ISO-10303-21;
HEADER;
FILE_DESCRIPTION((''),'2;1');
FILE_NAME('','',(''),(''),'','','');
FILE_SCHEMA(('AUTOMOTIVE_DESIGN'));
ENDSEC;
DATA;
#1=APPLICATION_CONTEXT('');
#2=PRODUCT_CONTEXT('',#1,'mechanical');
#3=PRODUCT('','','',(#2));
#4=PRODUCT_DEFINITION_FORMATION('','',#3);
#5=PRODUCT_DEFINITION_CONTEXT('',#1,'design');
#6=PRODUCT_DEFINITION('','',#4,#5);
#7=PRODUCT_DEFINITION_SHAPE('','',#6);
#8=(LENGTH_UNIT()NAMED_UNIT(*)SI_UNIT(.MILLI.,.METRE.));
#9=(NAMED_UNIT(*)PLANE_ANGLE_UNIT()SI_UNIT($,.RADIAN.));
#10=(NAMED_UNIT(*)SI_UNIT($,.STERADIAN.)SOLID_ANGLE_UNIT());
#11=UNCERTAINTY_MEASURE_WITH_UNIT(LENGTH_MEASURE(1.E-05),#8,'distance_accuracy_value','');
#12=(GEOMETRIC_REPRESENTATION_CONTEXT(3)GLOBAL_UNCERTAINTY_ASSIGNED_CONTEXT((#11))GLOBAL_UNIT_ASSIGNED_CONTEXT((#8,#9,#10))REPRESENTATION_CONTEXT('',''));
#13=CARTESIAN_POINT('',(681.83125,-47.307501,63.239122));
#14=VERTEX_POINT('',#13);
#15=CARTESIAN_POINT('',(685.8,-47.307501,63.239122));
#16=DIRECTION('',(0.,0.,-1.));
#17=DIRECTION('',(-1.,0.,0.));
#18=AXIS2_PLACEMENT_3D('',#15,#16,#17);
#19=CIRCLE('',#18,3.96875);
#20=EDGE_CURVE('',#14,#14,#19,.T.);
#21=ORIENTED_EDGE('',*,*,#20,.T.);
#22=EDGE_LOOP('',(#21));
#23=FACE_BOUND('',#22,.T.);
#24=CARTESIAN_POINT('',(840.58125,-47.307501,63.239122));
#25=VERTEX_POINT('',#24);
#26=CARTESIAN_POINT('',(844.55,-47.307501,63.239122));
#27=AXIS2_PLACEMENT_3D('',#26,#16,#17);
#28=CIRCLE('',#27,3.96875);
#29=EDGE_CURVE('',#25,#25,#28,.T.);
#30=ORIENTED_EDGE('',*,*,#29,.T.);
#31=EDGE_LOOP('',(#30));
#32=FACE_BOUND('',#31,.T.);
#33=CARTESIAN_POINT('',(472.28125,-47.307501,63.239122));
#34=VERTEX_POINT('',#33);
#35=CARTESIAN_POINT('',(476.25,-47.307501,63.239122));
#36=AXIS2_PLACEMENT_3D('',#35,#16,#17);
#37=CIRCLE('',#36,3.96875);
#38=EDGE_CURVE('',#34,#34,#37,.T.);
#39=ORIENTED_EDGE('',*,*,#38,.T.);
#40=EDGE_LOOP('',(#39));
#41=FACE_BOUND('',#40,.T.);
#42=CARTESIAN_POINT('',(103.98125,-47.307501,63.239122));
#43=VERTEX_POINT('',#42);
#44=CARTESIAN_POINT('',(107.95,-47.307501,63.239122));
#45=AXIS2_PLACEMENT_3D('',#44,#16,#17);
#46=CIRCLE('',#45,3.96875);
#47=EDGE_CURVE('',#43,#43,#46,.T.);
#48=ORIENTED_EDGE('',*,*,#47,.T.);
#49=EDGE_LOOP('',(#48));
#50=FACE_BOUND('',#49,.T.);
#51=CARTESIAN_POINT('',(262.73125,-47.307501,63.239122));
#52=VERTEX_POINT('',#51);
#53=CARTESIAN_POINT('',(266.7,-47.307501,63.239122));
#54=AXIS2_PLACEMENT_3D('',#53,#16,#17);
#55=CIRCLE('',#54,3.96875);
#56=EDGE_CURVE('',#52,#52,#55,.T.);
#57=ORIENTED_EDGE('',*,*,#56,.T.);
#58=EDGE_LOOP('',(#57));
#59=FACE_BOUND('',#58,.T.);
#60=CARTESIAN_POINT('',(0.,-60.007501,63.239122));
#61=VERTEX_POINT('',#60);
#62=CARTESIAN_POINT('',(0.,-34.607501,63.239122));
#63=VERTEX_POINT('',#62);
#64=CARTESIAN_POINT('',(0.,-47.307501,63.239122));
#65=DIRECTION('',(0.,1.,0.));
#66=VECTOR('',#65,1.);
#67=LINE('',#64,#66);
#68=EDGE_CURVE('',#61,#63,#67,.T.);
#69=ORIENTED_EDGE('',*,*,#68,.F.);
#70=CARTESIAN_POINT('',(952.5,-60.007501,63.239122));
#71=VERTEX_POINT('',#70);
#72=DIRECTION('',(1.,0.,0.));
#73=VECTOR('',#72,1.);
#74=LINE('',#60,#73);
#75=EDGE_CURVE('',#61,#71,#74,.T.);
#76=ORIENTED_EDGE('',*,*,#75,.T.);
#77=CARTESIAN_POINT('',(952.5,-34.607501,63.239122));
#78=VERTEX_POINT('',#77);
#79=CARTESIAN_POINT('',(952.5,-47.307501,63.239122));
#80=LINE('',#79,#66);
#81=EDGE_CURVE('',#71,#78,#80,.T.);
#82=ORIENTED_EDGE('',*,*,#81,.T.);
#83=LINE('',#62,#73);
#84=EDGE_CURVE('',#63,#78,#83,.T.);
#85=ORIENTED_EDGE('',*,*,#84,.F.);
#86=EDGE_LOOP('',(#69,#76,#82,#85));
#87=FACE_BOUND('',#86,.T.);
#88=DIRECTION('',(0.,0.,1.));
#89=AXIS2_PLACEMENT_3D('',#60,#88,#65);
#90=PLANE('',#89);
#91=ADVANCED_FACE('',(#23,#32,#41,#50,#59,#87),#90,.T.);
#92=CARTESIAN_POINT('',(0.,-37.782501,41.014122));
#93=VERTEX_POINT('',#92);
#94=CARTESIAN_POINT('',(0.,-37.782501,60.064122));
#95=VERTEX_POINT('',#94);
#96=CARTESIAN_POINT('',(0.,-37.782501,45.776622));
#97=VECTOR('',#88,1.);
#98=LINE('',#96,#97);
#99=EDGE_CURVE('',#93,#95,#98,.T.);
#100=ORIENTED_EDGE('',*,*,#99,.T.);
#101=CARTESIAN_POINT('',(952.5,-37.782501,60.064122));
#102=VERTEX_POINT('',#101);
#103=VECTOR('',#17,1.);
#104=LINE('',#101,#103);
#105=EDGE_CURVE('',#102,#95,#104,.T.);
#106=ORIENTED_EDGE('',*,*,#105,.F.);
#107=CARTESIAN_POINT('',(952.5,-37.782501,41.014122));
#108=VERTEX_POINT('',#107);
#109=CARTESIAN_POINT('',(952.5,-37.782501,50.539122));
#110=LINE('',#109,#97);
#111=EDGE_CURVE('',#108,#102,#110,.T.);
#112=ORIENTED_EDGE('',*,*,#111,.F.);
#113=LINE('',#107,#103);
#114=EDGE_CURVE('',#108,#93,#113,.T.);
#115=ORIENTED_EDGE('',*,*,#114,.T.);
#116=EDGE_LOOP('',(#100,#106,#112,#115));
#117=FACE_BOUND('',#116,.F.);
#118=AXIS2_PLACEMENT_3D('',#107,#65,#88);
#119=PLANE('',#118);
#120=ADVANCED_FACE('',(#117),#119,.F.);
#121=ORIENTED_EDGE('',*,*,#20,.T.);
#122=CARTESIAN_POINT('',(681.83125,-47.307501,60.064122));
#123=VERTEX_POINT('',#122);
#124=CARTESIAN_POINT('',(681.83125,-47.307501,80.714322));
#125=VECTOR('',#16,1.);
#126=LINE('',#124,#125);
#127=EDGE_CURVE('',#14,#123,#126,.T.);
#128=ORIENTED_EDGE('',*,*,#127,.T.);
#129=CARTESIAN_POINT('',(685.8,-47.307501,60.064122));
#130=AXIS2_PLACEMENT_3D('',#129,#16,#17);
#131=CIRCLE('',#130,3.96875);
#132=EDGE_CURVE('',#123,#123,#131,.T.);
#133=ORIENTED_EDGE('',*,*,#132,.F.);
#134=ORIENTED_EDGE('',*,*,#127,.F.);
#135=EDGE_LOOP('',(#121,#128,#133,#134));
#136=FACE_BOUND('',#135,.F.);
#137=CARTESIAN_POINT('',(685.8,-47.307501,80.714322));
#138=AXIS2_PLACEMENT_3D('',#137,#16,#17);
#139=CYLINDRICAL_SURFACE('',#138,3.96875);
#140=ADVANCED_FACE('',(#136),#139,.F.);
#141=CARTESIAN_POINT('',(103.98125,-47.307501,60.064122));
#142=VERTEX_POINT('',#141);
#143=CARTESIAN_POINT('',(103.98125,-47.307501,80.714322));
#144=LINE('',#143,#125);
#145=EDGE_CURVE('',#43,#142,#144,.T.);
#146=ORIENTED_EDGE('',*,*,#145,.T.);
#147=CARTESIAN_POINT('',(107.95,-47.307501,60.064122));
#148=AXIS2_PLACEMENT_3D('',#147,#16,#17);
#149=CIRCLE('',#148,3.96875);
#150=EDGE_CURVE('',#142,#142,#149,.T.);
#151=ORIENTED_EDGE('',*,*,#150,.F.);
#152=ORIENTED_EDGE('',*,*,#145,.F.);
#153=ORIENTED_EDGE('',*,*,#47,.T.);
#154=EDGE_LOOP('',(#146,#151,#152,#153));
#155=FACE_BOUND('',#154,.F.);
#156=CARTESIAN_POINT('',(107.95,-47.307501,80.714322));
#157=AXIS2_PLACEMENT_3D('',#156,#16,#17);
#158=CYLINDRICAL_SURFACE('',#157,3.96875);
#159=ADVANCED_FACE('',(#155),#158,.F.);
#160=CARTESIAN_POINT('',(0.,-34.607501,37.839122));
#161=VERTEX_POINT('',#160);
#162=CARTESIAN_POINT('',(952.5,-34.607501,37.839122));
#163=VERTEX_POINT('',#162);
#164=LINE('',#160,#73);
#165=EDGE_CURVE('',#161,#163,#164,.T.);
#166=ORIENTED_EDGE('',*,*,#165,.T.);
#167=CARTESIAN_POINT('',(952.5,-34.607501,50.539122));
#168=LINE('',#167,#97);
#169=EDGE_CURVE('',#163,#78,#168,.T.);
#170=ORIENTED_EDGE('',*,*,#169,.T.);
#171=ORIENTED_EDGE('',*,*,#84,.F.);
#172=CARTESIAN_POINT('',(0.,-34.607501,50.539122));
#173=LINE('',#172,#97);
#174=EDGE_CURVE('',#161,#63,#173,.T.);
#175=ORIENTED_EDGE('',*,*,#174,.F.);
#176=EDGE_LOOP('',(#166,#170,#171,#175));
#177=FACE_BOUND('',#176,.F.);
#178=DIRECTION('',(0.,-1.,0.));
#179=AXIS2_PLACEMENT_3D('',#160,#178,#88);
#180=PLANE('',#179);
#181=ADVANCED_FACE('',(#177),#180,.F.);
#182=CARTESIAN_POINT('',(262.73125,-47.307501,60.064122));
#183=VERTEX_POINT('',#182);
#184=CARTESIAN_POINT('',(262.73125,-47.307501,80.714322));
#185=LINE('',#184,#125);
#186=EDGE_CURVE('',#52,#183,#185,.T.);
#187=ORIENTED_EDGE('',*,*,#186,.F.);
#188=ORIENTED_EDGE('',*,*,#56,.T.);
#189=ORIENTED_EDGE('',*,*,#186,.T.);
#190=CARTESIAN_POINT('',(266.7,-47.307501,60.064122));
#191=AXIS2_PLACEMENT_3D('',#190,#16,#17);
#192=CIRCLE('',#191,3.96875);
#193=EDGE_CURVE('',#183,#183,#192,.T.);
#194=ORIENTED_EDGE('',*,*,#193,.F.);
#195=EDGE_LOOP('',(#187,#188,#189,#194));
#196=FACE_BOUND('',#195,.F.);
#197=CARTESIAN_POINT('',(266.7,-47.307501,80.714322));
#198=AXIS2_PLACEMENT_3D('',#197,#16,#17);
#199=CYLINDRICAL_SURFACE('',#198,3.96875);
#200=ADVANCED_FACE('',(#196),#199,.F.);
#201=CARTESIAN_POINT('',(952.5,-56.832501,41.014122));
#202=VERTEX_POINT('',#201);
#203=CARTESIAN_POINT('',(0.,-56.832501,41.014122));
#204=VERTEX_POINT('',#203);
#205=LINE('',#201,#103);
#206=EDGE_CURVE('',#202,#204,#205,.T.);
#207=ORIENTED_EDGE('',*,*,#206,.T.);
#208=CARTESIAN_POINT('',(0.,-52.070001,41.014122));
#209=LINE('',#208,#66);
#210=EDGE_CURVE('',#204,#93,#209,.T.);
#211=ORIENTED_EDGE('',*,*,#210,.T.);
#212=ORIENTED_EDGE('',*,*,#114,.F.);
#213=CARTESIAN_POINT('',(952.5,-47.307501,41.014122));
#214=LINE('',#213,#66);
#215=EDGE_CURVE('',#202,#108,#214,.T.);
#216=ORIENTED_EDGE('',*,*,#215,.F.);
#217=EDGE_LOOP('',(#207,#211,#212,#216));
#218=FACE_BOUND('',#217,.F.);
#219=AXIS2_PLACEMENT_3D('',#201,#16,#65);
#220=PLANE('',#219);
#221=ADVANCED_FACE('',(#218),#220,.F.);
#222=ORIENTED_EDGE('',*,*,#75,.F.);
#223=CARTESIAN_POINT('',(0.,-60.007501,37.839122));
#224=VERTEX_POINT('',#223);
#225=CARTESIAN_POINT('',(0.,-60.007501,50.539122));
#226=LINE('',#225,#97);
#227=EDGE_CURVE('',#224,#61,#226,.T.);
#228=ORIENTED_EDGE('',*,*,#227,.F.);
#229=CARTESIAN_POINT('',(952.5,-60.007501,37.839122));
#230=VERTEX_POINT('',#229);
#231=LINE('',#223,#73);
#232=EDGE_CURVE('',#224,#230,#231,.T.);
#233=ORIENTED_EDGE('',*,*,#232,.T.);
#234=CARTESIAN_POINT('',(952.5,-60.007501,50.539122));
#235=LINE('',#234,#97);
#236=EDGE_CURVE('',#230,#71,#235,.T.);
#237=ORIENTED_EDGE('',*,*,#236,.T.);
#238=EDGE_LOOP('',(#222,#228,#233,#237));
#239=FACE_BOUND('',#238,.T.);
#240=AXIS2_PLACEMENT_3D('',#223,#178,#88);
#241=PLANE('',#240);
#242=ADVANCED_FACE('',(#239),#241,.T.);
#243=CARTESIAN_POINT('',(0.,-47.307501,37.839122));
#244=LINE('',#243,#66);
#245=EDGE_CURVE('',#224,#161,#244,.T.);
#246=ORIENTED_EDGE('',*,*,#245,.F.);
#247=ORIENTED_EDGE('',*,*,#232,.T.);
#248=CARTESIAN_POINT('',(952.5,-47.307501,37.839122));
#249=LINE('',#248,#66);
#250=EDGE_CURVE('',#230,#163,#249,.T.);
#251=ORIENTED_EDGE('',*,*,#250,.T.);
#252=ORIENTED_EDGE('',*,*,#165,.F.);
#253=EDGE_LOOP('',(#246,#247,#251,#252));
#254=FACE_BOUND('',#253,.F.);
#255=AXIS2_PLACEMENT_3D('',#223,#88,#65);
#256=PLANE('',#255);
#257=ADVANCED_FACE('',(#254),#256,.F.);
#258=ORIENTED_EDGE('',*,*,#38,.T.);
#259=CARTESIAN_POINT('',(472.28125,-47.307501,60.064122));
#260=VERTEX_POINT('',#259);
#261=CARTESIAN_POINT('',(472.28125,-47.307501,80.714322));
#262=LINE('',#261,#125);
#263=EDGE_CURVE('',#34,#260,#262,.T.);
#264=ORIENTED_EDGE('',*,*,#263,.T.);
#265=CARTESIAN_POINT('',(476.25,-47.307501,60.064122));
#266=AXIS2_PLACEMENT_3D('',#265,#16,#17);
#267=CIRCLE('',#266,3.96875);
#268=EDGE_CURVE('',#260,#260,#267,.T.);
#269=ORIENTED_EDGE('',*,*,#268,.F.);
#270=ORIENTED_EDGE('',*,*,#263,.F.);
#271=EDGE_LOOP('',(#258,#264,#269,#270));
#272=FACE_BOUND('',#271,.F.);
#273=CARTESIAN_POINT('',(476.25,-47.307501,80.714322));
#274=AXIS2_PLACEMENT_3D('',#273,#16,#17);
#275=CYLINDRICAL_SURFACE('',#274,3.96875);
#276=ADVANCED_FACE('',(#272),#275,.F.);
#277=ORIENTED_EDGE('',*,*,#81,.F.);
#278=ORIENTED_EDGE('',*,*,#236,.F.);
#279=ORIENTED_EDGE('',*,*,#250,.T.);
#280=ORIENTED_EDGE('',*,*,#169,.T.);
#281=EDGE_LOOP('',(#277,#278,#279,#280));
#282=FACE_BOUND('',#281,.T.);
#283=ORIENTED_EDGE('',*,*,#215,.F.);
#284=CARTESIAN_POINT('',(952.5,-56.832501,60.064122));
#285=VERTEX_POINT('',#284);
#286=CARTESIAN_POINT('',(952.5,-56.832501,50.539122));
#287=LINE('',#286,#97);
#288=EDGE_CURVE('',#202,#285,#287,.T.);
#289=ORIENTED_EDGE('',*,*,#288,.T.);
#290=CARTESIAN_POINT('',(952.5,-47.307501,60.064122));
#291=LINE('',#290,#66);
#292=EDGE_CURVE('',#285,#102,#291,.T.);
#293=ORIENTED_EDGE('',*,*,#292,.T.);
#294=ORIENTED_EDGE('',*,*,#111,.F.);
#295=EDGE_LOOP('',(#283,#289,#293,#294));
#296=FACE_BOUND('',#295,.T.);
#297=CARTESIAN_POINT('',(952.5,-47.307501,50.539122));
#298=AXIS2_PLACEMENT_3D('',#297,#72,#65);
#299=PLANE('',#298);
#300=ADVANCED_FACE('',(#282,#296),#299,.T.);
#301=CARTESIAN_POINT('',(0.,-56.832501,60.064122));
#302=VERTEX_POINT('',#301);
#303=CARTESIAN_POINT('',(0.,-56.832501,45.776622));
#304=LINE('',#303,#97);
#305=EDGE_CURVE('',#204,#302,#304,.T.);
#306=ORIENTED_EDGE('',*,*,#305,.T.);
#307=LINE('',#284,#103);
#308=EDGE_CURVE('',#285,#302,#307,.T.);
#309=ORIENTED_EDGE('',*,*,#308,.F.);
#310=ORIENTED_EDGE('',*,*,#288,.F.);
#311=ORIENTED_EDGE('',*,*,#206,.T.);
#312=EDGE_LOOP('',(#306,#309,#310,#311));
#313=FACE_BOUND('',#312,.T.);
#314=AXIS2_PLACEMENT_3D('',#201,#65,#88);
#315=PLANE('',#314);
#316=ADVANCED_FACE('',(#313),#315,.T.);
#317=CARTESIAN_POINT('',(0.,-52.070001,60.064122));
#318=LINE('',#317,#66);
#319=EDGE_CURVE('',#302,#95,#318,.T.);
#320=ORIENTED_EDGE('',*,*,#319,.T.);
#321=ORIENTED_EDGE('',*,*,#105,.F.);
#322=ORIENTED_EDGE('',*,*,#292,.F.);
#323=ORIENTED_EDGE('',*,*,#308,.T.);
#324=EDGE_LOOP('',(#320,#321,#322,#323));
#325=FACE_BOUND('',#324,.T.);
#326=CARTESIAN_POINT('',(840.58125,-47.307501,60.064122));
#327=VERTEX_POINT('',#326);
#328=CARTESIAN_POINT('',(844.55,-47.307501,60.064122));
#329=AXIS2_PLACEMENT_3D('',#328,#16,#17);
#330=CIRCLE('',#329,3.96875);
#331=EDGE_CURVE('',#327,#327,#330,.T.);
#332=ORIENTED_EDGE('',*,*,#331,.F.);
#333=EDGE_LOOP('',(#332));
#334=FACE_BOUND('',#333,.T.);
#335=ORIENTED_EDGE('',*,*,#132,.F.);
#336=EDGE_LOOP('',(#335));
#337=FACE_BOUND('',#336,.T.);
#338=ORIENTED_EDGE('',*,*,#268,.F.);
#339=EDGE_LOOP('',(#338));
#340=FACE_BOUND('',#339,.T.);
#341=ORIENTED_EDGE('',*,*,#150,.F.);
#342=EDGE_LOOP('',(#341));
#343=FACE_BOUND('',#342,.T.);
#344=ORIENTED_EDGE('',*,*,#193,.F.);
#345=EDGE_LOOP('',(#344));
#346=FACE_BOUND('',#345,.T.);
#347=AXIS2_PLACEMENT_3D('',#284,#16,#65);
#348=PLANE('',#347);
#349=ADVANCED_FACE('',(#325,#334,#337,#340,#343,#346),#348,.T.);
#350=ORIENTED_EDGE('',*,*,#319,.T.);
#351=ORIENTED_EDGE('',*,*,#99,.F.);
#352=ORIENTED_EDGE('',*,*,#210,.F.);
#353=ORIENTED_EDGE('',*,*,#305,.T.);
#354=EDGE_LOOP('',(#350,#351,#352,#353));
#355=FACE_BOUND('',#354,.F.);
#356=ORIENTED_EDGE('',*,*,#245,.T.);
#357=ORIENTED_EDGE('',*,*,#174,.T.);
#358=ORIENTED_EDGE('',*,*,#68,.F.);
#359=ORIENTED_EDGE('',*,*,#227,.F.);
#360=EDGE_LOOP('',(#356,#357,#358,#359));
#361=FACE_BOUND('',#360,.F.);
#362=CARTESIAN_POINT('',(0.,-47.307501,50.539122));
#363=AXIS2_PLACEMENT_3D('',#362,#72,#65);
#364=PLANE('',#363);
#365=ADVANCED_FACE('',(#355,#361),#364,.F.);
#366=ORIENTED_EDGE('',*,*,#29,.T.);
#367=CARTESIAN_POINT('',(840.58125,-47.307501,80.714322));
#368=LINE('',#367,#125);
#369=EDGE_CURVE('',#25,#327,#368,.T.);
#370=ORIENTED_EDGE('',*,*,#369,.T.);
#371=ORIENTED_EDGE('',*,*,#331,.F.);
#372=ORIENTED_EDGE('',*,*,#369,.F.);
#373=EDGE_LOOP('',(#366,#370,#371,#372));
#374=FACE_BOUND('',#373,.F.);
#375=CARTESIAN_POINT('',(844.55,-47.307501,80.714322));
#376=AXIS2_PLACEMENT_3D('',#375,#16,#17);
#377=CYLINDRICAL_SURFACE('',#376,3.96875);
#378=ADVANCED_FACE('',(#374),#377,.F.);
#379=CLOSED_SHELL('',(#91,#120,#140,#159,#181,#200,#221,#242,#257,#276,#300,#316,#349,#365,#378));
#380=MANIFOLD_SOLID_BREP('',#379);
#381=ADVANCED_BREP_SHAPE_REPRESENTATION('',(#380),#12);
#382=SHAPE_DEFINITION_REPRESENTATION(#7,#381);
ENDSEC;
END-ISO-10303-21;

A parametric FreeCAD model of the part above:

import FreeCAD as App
import Part
import Sketcher
Q = App.Units.Quantity

doc = App.newDocument("Part")
body = doc.addObject("PartDesign::Body", "Body")

sketch1 = body.newObject("Sketcher::SketchObject", "Sketch")
sketch1.AttachmentSupport = (doc.getObject("YZ_Plane"), [""])
sketch1.MapMode = "FlatFace"
sketch1.addGeometry([
    Part.LineSegment(App.Vector(-60, 63, 0), App.Vector(-60, 38, 0)),
    Part.LineSegment(App.Vector(-60, 38, 0), App.Vector(-35, 38, 0)),
    Part.LineSegment(App.Vector(-35, 38, 0), App.Vector(-35, 63, 0)),
    Part.LineSegment(App.Vector(-35, 63, 0), App.Vector(-60, 63, 0)),
], False)
sketch1.addConstraint([
    Sketcher.Constraint("Coincident", 0, 2, 1, 1),
    Sketcher.Constraint("Coincident", 1, 2, 2, 1),
    Sketcher.Constraint("Coincident", 2, 2, 3, 1),
    Sketcher.Constraint("Coincident", 3, 2, 0, 1),
    Sketcher.Constraint("Vertical", 0),
    Sketcher.Constraint("Horizontal", 1),
    Sketcher.Constraint("Vertical", 2),
    Sketcher.Constraint("Horizontal", 3),
    Sketcher.Constraint("Equal", 3, 0),
    Sketcher.Constraint("DistanceX", 1, 1, 1, 2, Q("1 in")),
    Sketcher.Constraint("DistanceX", 0, 2, -1, 1, Q("2.3625001 in")),
    Sketcher.Constraint("DistanceY", -1, 1, 0, 2, 37.839122),
])
pad1 = body.newObject("PartDesign::Pad", "Pad")
pad1.Profile = sketch1
pad1.Length = Q("37.5 in")

sketch2 = body.newObject("Sketcher::SketchObject", "Sketch001")
sketch2.AttachmentSupport = (doc.getObject("YZ_Plane"), [""])
sketch2.MapMode = "FlatFace"
sketch2.AttachmentOffset = App.Placement(App.Vector(0, 0, 37.5 * 25.4), App.Rotation())
sketch2.addGeometry([
    Part.LineSegment(App.Vector(-57, 60, 0), App.Vector(-57, 41, 0)),
    Part.LineSegment(App.Vector(-57, 41, 0), App.Vector(-38, 41, 0)),
    Part.LineSegment(App.Vector(-38, 41, 0), App.Vector(-38, 60, 0)),
    Part.LineSegment(App.Vector(-38, 60, 0), App.Vector(-57, 60, 0)),
], False)
sketch2.addConstraint([
    Sketcher.Constraint("Coincident", 0, 2, 1, 1),
    Sketcher.Constraint("Coincident", 1, 2, 2, 1),
    Sketcher.Constraint("Coincident", 2, 2, 3, 1),
    Sketcher.Constraint("Coincident", 3, 2, 0, 1),
    Sketcher.Constraint("Vertical", 0),
    Sketcher.Constraint("Horizontal", 1),
    Sketcher.Constraint("Vertical", 2),
    Sketcher.Constraint("Horizontal", 3),
    Sketcher.Constraint("Equal", 3, 0),
    Sketcher.Constraint("DistanceX", 1, 1, 1, 2, Q("0.75 in")),
    Sketcher.Constraint("DistanceX", 0, 2, -1, 1, Q("2.2375001 in")),
    Sketcher.Constraint("DistanceY", -1, 1, 0, 2, 41.014122),
])
pocket1 = body.newObject("PartDesign::Pocket", "Pocket")
pocket1.Profile = sketch2
pocket1.Type = "ThroughAll"

sketch3 = body.newObject("Sketcher::SketchObject", "Sketch002")
sketch3.AttachmentSupport = (doc.getObject("XY_Plane"), [""])
sketch3.MapMode = "FlatFace"
sketch3.AttachmentOffset = App.Placement(App.Vector(0, 0, 63.239122), App.Rotation())
sketch3.addGeometry([
    Part.Circle(App.Vector(844.5, -47.3, 0), App.Vector(0, 0, 1), 4),
    Part.Circle(App.Vector(685.8, -47.3, 0), App.Vector(0, 0, 1), 4),
    Part.Circle(App.Vector(476.2, -47.3, 0), App.Vector(0, 0, 1), 4),
    Part.Circle(App.Vector(266.7, -47.3, 0), App.Vector(0, 0, 1), 4),
    Part.Circle(App.Vector(108, -47.3, 0), App.Vector(0, 0, 1), 4),
], False)
sketch3.addConstraint([
    Sketcher.Constraint("Equal", 0, 1),
    Sketcher.Constraint("Equal", 1, 2),
    Sketcher.Constraint("Equal", 2, 3),
    Sketcher.Constraint("Equal", 3, 4),
    Sketcher.Constraint("Horizontal", 0, 3, 1, 3),
    Sketcher.Constraint("Horizontal", 1, 3, 2, 3),
    Sketcher.Constraint("Horizontal", 2, 3, 3, 3),
    Sketcher.Constraint("Horizontal", 3, 3, 4, 3),
    Sketcher.Constraint("Diameter", 0, Q("0.3125 in")),
    Sketcher.Constraint("DistanceX", -1, 1, 1, 3, Q("27 in")),
    Sketcher.Constraint("DistanceX", 4, 3, 0, 3, Q("29 in")),
    Sketcher.Constraint("DistanceX", -1, 1, 3, 3, Q("10.5 in")),
    Sketcher.Constraint("DistanceX", 2, 3, 0, 3, Q("14.5 in")),
    Sketcher.Constraint("DistanceX", -1, 1, 0, 3, Q("33.25 in")),
    Sketcher.Constraint("DistanceY", 0, 3, -1, 1, Q("1.8625001 in")),
])
doc.recompute()
hole = body.newObject("PartDesign::Hole", "Hole")
hole.Profile = sketch3
hole.ThreadType = "None"
hole.Diameter = Q("0.3125 in")
hole.DepthType = "Dimension"
hole.Depth = Q("0.688 in")
hole.DrillPoint = "Angled"
hole.DrillPointAngle = 118

doc.recompute()
